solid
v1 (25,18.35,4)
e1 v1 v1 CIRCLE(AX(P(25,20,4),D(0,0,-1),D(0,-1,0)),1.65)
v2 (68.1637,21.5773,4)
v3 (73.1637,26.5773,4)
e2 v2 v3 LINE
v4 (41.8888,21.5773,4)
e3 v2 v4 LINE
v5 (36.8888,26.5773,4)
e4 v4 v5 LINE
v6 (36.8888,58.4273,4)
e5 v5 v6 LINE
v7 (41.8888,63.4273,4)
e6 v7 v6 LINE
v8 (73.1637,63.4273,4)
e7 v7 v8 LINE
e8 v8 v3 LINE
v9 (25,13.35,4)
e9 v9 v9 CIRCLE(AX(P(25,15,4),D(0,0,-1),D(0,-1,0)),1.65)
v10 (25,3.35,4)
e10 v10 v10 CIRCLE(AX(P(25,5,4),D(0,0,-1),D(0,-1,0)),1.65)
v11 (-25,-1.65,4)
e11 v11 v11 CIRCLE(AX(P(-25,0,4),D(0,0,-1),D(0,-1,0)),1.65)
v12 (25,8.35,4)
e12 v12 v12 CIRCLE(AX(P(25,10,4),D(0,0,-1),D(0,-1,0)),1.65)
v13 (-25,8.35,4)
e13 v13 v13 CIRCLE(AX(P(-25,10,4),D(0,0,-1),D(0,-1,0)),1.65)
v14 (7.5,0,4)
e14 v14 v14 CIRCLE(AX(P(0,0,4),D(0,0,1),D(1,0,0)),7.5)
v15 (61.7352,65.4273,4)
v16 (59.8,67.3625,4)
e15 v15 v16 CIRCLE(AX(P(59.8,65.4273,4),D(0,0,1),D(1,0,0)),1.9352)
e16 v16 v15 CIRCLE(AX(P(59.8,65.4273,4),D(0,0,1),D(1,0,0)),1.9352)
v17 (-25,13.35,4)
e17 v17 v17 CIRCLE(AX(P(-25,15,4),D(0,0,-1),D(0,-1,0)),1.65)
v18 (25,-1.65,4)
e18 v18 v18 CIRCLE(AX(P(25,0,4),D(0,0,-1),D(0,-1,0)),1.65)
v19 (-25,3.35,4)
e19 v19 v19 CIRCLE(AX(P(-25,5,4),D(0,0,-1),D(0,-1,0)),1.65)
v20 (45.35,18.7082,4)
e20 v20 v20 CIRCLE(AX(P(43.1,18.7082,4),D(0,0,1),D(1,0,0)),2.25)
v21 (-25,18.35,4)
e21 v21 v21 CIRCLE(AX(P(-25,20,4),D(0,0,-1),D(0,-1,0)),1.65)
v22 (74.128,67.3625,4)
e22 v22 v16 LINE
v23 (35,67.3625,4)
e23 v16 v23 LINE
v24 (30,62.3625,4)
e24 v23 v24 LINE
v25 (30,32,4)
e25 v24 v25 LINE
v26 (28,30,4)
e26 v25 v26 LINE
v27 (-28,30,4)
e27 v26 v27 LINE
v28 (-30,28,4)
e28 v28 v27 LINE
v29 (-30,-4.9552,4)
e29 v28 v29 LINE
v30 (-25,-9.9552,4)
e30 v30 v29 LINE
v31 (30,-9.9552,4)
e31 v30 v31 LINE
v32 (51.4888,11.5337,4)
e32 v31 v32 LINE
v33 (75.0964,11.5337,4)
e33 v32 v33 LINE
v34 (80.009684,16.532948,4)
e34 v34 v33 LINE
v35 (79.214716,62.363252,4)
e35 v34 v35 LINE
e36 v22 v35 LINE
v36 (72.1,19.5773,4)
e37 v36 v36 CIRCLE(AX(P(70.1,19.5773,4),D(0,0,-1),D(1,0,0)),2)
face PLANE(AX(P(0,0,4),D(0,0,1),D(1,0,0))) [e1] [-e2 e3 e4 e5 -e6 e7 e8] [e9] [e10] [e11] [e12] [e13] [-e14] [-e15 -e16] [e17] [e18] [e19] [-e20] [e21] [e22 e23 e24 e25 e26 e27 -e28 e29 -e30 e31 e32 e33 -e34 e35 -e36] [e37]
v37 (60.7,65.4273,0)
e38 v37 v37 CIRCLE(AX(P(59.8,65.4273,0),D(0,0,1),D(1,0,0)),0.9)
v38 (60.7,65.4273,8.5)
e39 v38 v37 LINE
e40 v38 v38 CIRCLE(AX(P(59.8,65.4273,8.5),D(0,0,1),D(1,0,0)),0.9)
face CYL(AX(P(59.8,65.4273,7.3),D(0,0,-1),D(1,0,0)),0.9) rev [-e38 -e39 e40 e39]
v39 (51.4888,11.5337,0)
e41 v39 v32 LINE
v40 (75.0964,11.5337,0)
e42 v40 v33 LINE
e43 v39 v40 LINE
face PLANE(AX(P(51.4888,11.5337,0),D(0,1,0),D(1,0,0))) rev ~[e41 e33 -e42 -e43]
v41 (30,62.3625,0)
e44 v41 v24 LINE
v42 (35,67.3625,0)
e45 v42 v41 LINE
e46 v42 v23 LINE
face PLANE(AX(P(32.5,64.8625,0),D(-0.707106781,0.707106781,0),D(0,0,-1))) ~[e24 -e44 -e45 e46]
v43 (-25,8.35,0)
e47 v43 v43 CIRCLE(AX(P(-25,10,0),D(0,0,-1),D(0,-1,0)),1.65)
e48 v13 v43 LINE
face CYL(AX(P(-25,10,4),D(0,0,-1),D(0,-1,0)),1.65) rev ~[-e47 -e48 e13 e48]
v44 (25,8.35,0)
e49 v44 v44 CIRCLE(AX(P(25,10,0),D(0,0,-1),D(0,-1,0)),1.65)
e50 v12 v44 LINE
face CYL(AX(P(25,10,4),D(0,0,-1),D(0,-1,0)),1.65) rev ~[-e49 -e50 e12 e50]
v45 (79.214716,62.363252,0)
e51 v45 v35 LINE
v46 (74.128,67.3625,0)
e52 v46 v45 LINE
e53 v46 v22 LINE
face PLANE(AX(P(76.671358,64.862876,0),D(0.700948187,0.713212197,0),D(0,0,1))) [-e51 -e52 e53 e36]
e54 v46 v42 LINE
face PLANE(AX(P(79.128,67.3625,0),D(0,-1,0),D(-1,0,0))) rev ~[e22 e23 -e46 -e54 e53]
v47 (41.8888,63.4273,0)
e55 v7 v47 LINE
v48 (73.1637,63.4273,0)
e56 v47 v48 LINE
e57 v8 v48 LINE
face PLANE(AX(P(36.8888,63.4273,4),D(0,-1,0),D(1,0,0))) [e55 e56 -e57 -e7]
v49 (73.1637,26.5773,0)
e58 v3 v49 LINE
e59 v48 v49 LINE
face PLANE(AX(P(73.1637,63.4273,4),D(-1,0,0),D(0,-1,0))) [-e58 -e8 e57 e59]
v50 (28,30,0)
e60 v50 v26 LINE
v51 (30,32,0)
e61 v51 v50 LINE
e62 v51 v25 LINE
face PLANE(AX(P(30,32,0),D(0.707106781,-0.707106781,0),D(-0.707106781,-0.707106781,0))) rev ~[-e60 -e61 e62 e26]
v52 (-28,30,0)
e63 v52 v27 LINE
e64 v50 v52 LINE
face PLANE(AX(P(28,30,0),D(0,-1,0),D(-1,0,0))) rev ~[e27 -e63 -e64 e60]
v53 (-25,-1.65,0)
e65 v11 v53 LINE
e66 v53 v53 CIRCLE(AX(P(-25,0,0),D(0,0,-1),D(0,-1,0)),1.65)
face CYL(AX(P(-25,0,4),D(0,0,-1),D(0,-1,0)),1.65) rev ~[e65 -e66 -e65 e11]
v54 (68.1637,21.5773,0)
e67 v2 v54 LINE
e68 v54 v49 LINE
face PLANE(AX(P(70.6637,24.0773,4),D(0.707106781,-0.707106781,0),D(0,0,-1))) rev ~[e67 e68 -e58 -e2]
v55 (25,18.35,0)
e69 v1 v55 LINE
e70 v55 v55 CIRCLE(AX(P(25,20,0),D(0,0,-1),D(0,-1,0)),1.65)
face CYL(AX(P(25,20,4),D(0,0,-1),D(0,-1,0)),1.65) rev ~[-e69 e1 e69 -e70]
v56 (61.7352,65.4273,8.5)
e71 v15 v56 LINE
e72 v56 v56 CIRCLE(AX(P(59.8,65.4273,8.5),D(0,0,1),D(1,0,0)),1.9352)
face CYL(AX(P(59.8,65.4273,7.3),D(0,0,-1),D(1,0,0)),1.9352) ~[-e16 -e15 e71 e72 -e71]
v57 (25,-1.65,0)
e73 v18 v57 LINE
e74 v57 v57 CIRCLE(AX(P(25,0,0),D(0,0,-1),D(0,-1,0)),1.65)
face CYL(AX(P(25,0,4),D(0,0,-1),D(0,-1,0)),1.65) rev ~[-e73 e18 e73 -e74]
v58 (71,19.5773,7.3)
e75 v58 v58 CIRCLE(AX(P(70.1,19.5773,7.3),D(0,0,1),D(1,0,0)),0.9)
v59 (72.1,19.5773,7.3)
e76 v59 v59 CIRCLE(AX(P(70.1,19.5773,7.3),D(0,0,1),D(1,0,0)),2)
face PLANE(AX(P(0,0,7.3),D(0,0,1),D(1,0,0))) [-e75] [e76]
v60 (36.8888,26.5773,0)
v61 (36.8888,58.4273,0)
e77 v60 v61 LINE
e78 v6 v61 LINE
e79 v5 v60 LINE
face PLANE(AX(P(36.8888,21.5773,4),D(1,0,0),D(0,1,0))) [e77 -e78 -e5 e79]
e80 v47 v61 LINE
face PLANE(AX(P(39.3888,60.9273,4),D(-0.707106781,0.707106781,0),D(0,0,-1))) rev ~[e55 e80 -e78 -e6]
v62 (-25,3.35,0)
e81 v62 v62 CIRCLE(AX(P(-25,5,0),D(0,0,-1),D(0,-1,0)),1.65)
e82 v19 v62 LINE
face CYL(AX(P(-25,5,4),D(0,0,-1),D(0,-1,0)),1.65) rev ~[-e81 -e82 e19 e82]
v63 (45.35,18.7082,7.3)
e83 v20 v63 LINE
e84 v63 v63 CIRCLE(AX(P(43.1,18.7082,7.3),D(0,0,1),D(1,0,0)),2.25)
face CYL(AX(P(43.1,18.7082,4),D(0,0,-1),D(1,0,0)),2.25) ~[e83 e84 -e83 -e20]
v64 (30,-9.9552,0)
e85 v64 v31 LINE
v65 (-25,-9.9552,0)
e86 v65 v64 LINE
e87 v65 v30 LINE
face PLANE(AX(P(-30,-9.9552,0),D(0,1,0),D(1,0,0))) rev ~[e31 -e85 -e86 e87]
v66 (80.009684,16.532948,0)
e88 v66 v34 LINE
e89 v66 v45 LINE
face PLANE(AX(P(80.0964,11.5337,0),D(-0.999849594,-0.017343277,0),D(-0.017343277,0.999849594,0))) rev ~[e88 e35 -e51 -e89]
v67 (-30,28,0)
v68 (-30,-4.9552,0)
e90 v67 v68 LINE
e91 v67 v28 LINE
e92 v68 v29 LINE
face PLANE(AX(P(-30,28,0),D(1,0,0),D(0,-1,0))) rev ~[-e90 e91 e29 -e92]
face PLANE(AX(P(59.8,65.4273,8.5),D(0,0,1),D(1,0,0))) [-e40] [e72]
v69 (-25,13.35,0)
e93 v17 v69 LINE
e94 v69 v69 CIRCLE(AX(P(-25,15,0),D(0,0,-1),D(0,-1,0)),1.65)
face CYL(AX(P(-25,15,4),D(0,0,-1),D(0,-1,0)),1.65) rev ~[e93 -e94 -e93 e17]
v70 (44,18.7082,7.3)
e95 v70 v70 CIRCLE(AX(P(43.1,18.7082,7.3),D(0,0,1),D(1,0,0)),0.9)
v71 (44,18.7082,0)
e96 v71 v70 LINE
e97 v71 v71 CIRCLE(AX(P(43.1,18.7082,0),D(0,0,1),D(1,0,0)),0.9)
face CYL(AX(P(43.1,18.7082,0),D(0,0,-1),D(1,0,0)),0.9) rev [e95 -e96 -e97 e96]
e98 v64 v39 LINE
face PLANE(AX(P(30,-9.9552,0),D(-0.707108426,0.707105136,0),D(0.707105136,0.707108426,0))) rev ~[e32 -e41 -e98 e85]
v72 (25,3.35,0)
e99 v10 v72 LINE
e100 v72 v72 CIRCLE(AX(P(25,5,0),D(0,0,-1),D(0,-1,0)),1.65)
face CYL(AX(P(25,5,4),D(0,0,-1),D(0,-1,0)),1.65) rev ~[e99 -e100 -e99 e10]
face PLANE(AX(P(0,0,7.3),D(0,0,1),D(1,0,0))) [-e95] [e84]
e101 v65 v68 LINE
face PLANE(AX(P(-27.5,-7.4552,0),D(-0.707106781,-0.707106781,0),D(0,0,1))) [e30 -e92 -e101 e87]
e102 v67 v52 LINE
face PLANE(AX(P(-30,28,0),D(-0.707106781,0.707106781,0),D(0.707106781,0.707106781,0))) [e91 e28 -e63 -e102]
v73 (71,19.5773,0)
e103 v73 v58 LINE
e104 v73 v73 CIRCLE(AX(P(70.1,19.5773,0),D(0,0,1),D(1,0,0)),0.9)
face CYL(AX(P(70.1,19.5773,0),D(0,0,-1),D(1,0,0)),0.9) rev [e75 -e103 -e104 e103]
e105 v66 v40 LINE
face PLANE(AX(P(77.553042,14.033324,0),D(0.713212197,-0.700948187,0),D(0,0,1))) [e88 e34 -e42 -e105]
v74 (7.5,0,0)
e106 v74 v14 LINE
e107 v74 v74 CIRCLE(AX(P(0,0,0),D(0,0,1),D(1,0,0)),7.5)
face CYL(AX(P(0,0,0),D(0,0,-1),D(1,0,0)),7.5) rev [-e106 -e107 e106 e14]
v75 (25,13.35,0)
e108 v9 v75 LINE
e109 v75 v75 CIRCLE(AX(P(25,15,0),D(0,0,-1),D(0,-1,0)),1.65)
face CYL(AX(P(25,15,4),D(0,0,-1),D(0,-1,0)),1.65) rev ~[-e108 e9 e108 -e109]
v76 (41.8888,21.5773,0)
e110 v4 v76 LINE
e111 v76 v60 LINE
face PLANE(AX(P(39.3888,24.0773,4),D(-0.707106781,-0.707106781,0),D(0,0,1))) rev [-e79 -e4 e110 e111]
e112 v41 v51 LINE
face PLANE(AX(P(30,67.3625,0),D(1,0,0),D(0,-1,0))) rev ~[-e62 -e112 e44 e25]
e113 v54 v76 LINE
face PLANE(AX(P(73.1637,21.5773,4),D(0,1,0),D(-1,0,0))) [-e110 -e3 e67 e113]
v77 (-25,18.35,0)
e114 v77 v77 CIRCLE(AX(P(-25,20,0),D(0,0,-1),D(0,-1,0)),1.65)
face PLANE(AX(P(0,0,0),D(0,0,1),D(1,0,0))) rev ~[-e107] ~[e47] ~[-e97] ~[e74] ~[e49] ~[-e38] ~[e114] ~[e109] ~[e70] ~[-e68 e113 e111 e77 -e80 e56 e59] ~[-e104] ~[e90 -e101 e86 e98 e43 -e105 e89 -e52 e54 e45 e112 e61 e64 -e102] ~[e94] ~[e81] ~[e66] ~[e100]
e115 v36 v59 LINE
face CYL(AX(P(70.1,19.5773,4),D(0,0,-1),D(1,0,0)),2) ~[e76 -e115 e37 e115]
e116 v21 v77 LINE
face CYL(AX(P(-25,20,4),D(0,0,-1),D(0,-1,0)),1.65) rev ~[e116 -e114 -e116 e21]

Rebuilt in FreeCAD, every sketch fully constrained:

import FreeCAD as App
import Part
import Sketcher

V = App.Vector
Q = App.Units.Quantity


def edges_at(feature, points):
    """Names of the edges that pass closest to the given points."""
    edges = feature.Shape.Edges
    near = lambda p: min(range(len(edges)), key=lambda i: edges[i].distToShape(Part.Vertex(*p))[0])
    return sorted({f"Edge{near(p) + 1}" for p in points})


def add_polygon(sketch, points):
    """Adds a closed chain of lines whose ends are joined by coincident constraints."""
    first, n = sketch.GeometryCount, len(points)
    for a, b in zip(points, points[1:] + points[:1]):
        sketch.addGeometry(Part.LineSegment(App.Vector(*a, 0), App.Vector(*b, 0)), False)
    for i in range(n):
        sketch.addConstraint(Sketcher.Constraint("Coincident", first + i, 2, first + (i + 1) % n, 1))

doc = App.newDocument("Part")
body = doc.addObject("PartDesign::Body", "Body")

sketch1 = doc.addObject("Sketcher::SketchObject", "Sketch")
body.addObject(sketch1)
sketch1.AttachmentSupport = (doc.XY_Plane, [""])
sketch1.MapMode = "FlatFace"
add_polygon(sketch1, [(30, 32), (28, 30), (-28, 30), (-30, 28), (-30, -9.9552), (30, -9.9552), (51.4888, 11.5337), (80.0964, 11.5337), (79.128, 67.3625), (30, 67.3625)])
sketch1.addGeometry(Part.Circle(V(43.1, 18.7082, 0), V(0, 0, 1), 0.9), False)
sketch1.addGeometry(Part.Circle(V(70.1, 19.5773, 0), V(0, 0, 1), 0.9), False)
sketch1.addGeometry(Part.Circle(V(59.8, 65.4273, 0), V(0, 0, 1), 0.9), False)
sketch1.addGeometry(Part.Circle(V(-25, 0, 0), V(0, 0, 1), 1.3), False)
sketch1.addGeometry(Part.Circle(V(0, 0, 0), V(0, 0, 1), 7.5), False)
sketch1.addGeometry(Part.Circle(V(25, 0, 0), V(0, 0, 1), 1.3), False)
sketch1.addConstraint([
    Sketcher.Constraint("Horizontal", 1),
    Sketcher.Constraint("Vertical", 3),
    Sketcher.Constraint("Horizontal", 4),
    Sketcher.Constraint("Horizontal", 6),
    Sketcher.Constraint("Horizontal", 8),
    Sketcher.Constraint("Vertical", 9),
    Sketcher.Constraint("Coincident", 14, 3, -1, 1),
    Sketcher.Constraint("Equal", 10, 11),
    Sketcher.Constraint("Equal", 11, 12),
    Sketcher.Constraint("Equal", 13, 15),
    Sketcher.Constraint("Symmetric", 13, 3, 15, 3, -1, 1),
    Sketcher.Constraint("PointOnObject", 13, 3, -1),
    Sketcher.Constraint("Parallel", 0, 2),
    Sketcher.Constraint("Parallel", 2, 5),
    Sketcher.Constraint("Vertical", 4, 2, 8, 2),
    Sketcher.Constraint("Equal", 0, 2),
    Sketcher.Constraint("Angle", 5, Q("45.0001 deg")),
    Sketcher.Constraint("Diameter", 14, 15.0),
    Sketcher.Constraint("Diameter", 10, 1.8),
    Sketcher.Constraint("Diameter", 13, 2.6),
    Sketcher.Constraint("DistanceX", 1, 2, 1, 1, 56.0),
    Sketcher.Constraint("DistanceX", 4, 1, 4, 2, 60.0),
    Sketcher.Constraint("DistanceX", 13, 3, -1, 1, 25.0),
    Sketcher.Constraint("DistanceX", -1, 1, 0, 2, 28.0),
    Sketcher.Constraint("DistanceY", -1, 1, 0, 2, 30.0),
    Sketcher.Constraint("DistanceX", 10, 3, 11, 3, 27.0),
    Sketcher.Constraint("DistanceX", -1, 1, 10, 3, 43.1),
    Sketcher.Constraint("DistanceX", -1, 1, 12, 3, 59.8),
    Sketcher.Constraint("DistanceX", 8, 2, 8, 1, 49.128),
    Sketcher.Constraint("DistanceY", 11, 3, 12, 3, 45.85),
    Sketcher.Constraint("DistanceX", 6, 1, 6, 2, 28.6076),
    Sketcher.Constraint("DistanceY", 3, 2, 3, 1, 37.9552),
    Sketcher.Constraint("DistanceY", 9, 2, 9, 1, 35.3625),
    Sketcher.Constraint("DistanceY", 10, 3, 11, 3, 0.869),
    Sketcher.Constraint("DistanceY", 4, 2, 5, 2, 21.489),
    Sketcher.Constraint("DistanceY", -1, 1, 10, 3, 18.7082),
])
pad1 = doc.addObject("PartDesign::Pad", "Pad")
body.addObject(pad1)
pad1.Profile = sketch1
pad1.Length = 4

sketch2 = doc.addObject("Sketcher::SketchObject", "Sketch001")
body.addObject(sketch2)
sketch2.AttachmentSupport = (doc.XY_Plane, [""])
sketch2.MapMode = "FlatFace"
sketch2.AttachmentOffset = App.Placement(V(0, 0, 4), App.Rotation())
sketch2.addGeometry([
    Part.Circle(V(43.1, 18.7082, 0), V(0, 0, 1), 2.25),
    Part.Circle(V(43.1, 18.7082, 0), V(0, 0, 1), 0.9),
    Part.Circle(V(59.8, 65.4273, 0), V(0, 0, 1), 1.9352),
    Part.Circle(V(59.8, 65.4273, 0), V(0, 0, 1), 0.9),
    Part.Circle(V(70.1, 19.5773, 0), V(0, 0, 1), 2),
    Part.Circle(V(70.1, 19.5773, 0), V(0, 0, 1), 0.9),
], False)
sketch2.addConstraint([
    Sketcher.Constraint("Coincident", 1, 3, 0, 3),
    Sketcher.Constraint("Coincident", 3, 3, 2, 3),
    Sketcher.Constraint("Coincident", 5, 3, 4, 3),
    Sketcher.Constraint("Equal", 1, 3),
    Sketcher.Constraint("Equal", 3, 5),
    Sketcher.Constraint("Diameter", 4, 4.0),
    Sketcher.Constraint("Diameter", 0, 4.5),
    Sketcher.Constraint("Diameter", 1, 1.8),
    Sketcher.Constraint("DistanceX", 0, 3, 4, 3, 27.0),
    Sketcher.Constraint("Diameter", 2, 3.8704),
    Sketcher.Constraint("DistanceX", -1, 1, 0, 3, 43.1),
    Sketcher.Constraint("DistanceX", -1, 1, 2, 3, 59.8),
    Sketcher.Constraint("DistanceY", 4, 3, 2, 3, 45.85),
    Sketcher.Constraint("DistanceY", 0, 3, 2, 3, 46.719),
    Sketcher.Constraint("DistanceY", -1, 1, 0, 3, 18.7082),
])
pad2 = doc.addObject("PartDesign::Pad", "Pad001")
body.addObject(pad2)
pad2.Profile = sketch2
pad2.Length = 3.3

sketch3 = doc.addObject("Sketcher::SketchObject", "Sketch002")
body.addObject(sketch3)
sketch3.AttachmentSupport = (doc.XY_Plane, [""])
sketch3.MapMode = "FlatFace"
sketch3.AttachmentOffset = App.Placement(V(0, 0, 7.3), App.Rotation())
sketch3.addGeometry([
    Part.Circle(V(59.8, 65.4273, 0), V(0, 0, 1), 1.9352),
    Part.Circle(V(59.8, 65.4273, 0), V(0, 0, 1), 0.9),
], False)
sketch3.addConstraint([
    Sketcher.Constraint("Coincident", 1, 3, 0, 3),
    Sketcher.Constraint("Diameter", 1, 1.8),
    Sketcher.Constraint("Diameter", 0, 3.8704),
    Sketcher.Constraint("DistanceX", -1, 1, 0, 3, 59.8),
    Sketcher.Constraint("DistanceY", -1, 1, 0, 3, 65.4273),
])
pad3 = doc.addObject("PartDesign::Pad", "Pad002")
body.addObject(pad3)
pad3.Profile = sketch3
pad3.Length = 1.2

sketch4 = doc.addObject("Sketcher::SketchObject", "Sketch003")
body.addObject(sketch4)
sketch4.AttachmentSupport = (doc.XY_Plane, [""])
sketch4.MapMode = "FlatFace"
sketch4.AttachmentOffset = App.Placement(V(0, 0, 4), App.Rotation())
add_polygon(sketch4, [(36.8888, 21.5773), (73.1637, 21.5773), (73.1637, 63.4273), (36.8888, 63.4273)])
sketch4.addConstraint([
    Sketcher.Constraint("Horizontal", 0),
    Sketcher.Constraint("Vertical", 1),
    Sketcher.Constraint("Horizontal", 2),
    Sketcher.Constraint("Vertical", 3),
    Sketcher.Constraint("DistanceY", 1, 1, 1, 2, 41.85),
    Sketcher.Constraint("DistanceX", 0, 1, 0, 2, 36.275),
    Sketcher.Constraint("DistanceX", -1, 1, 0, 2, 73.1637),
    Sketcher.Constraint("DistanceY", -1, 1, 0, 2, 21.5773),
])
pocket1 = doc.addObject("PartDesign::Pocket", "Pocket")
body.addObject(pocket1)
pocket1.Profile = sketch4
pocket1.Length = 4
doc.recompute()

chamfer = doc.addObject("PartDesign::Chamfer", "Chamfer")
body.addObject(chamfer)
chamfer.Base = (pocket1, edges_at(pocket1, [
    (36.889, 63.427, 2),
    (36.889, 21.577, 2),
    (30, 67.362, 2),
    (73.164, 21.577, 2),
    (79.128, 67.362, 2),
    (80.096, 11.534, 2),
    (-30, -9.955, 2),
]))
chamfer.Size = 5

sketch5 = doc.addObject("Sketcher::SketchObject", "Sketch004")
body.addObject(sketch5)
sketch5.AttachmentSupport = (doc.XY_Plane, [""])
sketch5.MapMode = "FlatFace"
sketch5.AttachmentOffset = App.Placement(V(0, 0, 4), App.Rotation())
sketch5.addGeometry([
    Part.Circle(V(-25, 0, 0), V(0, 0, 1), 1.65),
    Part.Circle(V(25, 0, 0), V(0, 0, 1), 1.65),
], False)
sketch5.addConstraint([
    Sketcher.Constraint("Equal", 0, 1),
    Sketcher.Constraint("Symmetric", 0, 3, 1, 3, -1, 1),
    Sketcher.Constraint("PointOnObject", 0, 3, -1),
    Sketcher.Constraint("Diameter", 0, 3.3),
    Sketcher.Constraint("DistanceX", 0, 3, -1, 1, 25.0),
])
doc.recompute()
hole = doc.addObject("PartDesign::Hole", "Hole")
body.addObject(hole)
hole.Profile = sketch5
hole.ThreadType = "None"
hole.Diameter = 3.3
hole.DepthType = "Dimension"
hole.Depth = 8
hole.DrillPoint = "Angled"
hole.DrillPointAngle = 118
doc.recompute()

linearpattern = doc.addObject("PartDesign::LinearPattern", "LinearPattern")
body.addObject(linearpattern)
linearpattern.Originals = [hole]
linearpattern.Direction = (doc.Y_Axis, [""])
linearpattern.Mode = "offset"
linearpattern.Offset = 5
linearpattern.Occurrences = 5
body.Tip = linearpattern

doc.recompute()
